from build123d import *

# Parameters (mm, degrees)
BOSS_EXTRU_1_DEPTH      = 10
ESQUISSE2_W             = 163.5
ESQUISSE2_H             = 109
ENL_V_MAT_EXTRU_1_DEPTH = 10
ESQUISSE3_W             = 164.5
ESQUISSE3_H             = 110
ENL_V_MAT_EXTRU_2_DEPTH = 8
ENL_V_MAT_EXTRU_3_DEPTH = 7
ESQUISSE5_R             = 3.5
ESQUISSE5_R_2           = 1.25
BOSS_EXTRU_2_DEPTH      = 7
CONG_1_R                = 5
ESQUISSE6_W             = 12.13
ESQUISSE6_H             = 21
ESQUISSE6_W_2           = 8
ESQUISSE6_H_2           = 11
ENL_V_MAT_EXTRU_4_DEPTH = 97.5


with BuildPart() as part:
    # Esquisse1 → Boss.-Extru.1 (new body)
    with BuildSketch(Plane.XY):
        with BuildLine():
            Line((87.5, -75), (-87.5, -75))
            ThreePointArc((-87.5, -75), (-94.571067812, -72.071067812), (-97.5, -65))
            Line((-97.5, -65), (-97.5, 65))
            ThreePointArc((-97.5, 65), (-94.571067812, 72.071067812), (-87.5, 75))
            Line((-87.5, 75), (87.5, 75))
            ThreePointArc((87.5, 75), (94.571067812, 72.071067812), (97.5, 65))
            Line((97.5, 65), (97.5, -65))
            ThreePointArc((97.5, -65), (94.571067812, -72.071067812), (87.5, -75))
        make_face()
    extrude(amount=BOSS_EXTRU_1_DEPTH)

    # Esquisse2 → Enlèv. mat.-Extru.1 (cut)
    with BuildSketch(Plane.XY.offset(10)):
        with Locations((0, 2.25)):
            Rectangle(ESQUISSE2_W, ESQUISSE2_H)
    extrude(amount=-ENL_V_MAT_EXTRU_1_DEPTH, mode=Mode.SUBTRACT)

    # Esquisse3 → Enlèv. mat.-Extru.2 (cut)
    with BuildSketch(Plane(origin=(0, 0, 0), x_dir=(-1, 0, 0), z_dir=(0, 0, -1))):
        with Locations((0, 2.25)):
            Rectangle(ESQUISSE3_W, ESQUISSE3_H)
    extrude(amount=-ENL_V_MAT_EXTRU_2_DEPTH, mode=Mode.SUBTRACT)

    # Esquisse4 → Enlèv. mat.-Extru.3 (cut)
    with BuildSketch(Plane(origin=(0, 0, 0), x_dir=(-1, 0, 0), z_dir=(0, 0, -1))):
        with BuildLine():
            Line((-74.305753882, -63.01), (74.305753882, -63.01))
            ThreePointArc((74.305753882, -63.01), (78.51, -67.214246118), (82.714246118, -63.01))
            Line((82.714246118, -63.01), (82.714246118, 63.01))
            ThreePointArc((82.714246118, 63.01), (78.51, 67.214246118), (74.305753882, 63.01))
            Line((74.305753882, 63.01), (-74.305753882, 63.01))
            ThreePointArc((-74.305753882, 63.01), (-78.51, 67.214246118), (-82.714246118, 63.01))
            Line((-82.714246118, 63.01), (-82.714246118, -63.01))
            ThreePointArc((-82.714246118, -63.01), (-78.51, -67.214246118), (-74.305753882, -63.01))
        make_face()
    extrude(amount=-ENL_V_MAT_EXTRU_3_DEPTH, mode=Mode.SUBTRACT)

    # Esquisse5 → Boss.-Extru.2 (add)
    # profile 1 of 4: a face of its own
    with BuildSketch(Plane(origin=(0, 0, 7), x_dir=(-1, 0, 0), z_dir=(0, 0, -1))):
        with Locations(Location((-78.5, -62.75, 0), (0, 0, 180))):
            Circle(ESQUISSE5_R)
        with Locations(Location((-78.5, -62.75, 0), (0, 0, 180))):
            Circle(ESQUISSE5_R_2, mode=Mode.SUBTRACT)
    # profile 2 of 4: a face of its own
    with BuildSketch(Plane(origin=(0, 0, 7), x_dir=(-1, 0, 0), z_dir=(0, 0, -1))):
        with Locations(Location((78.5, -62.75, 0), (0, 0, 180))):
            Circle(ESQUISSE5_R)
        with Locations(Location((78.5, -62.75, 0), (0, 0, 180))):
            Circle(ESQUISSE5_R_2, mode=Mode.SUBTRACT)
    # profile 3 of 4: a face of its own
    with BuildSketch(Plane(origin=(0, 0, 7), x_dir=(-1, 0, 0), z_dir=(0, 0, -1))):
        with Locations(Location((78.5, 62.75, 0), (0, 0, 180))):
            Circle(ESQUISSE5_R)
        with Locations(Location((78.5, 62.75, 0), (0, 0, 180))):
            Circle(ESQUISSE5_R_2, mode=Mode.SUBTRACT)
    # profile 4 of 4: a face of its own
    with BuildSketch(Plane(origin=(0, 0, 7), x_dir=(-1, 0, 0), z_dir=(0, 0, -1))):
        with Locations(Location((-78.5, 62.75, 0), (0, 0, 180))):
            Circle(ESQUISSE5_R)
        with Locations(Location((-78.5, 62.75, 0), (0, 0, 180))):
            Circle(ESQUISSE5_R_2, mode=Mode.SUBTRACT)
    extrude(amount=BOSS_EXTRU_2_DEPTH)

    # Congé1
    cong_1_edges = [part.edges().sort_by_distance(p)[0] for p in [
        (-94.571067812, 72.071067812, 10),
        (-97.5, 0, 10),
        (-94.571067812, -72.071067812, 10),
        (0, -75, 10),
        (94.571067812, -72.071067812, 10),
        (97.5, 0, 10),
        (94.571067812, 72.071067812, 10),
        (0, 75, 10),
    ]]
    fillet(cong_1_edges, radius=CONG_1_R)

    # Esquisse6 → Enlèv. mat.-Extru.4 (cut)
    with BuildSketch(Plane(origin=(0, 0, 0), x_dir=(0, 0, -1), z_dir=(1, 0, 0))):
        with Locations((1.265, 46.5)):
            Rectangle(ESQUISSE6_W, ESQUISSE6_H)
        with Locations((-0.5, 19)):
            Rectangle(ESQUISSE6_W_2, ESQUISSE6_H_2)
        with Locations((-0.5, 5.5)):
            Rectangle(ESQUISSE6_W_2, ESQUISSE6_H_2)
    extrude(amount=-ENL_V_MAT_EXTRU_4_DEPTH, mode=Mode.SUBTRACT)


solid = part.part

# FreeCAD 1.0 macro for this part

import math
import FreeCAD as App
import Part
import Sketcher

V = App.Vector


def edges_at(feature, points):
    """Names of the edges that pass closest to the given points."""
    edges = feature.Shape.Edges
    near = lambda p: min(range(len(edges)), key=lambda i: edges[i].distToShape(Part.Vertex(*p))[0])
    return sorted({f"Edge{near(p) + 1}" for p in points})

doc = App.newDocument("Part")
params = doc.addObject("Spreadsheet::Sheet", "Params")
for row, (alias, value) in enumerate([
    ("sketch1_radius", "10 mm"),
    ("sketch1_width", "175 mm"),
    ("sketch1_height", "130 mm"),
    ("pad1_length", "10 mm"),
    ("sketch2_height", "109 mm"),
    ("sketch2_width", "163.5 mm"),
    ("pocket1_length", "10 mm"),
    ("sketch3_height", "110 mm"),
    ("sketch3_width", "164.5 mm"),
    ("pocket2_length", "8 mm"),
    ("sketch4_height", "126.02 mm"),
    ("pocket3_length", "7 mm"),
    ("sketch5_diameter", "7 mm"),
    ("sketch5_diameter2", "2.5 mm"),
    ("pad2_length", "7 mm"),
    ("fillet_radius", "5 mm"),
    ("sketch6_width", "21 mm"),
    ("sketch6_width2", "11 mm"),
    ("sketch6_height", "8 mm"),
    ("sketch6_height2", "12.13 mm"),
    ("pocket4_length", "97.5 mm"),
], start=1):
    params.set(f"A{row}", alias)
    params.set(f"B{row}", "=" + value)
    params.setAlias(f"B{row}", alias)

body = doc.addObject("PartDesign::Body", "Body")

# Sketch on XY plane
sketch1 = body.newObject("Sketcher::SketchObject", "Sketch")
sketch1.AttachmentSupport = (doc.getObject("XY_Plane"), [""])
sketch1.MapMode = "FlatFace"
sketch1.addGeometry([
    Part.LineSegment(V(-88, -75, 0), V(88, -75, 0)),  # 0
    Part.ArcOfCircle(Part.Circle(V(88, -65, 0), V(0, 0, 1), 10), math.radians(-90), math.radians(0)),  # 1
    Part.LineSegment(V(98, -65, 0), V(98, 65, 0)),  # 2
    Part.ArcOfCircle(Part.Circle(V(88, 65, 0), V(0, 0, 1), 10), math.radians(0), math.radians(90)),  # 3
    Part.LineSegment(V(88, 75, 0), V(-88, 75, 0)),  # 4
    Part.ArcOfCircle(Part.Circle(V(-88, 65, 0), V(0, 0, 1), 10), math.radians(90), math.radians(180)),  # 5
    Part.LineSegment(V(-98, 65, 0), V(-98, -65, 0)),  # 6
    Part.ArcOfCircle(Part.Circle(V(-88, -65, 0), V(0, 0, 1), 10), math.radians(180), math.radians(270)),  # 7
], False)
sketch1.addConstraint([
    Sketcher.Constraint("Tangent", 0, 2, 1, 1),
    Sketcher.Constraint("Tangent", 1, 2, 2, 1),
    Sketcher.Constraint("Tangent", 2, 2, 3, 1),
    Sketcher.Constraint("Tangent", 3, 2, 4, 1),
    Sketcher.Constraint("Tangent", 4, 2, 5, 1),
    Sketcher.Constraint("Tangent", 5, 2, 6, 1),
    Sketcher.Constraint("Tangent", 6, 2, 7, 1),
    Sketcher.Constraint("Tangent", 7, 2, 0, 1),
    Sketcher.Constraint("Horizontal", 0),
    Sketcher.Constraint("Vertical", 2),
    Sketcher.Constraint("Horizontal", 4),
    Sketcher.Constraint("Vertical", 6),
    Sketcher.Constraint("Equal", 1, 3),
    Sketcher.Constraint("Equal", 3, 5),
    Sketcher.Constraint("Equal", 5, 7),
    Sketcher.Constraint("Symmetric", 1, 3, 5, 3, -1, 1),
    Sketcher.Constraint("Radius", 1, 10.0),
    Sketcher.Constraint("DistanceX", 0, 1, 0, 2, 175.0),
    Sketcher.Constraint("DistanceY", 2, 1, 2, 2, 130.0),
])
sketch1.setExpression("Constraints[16]", "Params.sketch1_radius")
sketch1.setExpression("Constraints[17]", "Params.sketch1_width")
sketch1.setExpression("Constraints[18]", "Params.sketch1_height")
pad1 = body.newObject("PartDesign::Pad", "Pad")
pad1.Profile = sketch1
pad1.setExpression("Length", "Params.pad1_length")

# Sketch on XY plane
sketch2 = body.newObject("Sketcher::SketchObject", "Sketch001")
sketch2.AttachmentSupport = (doc.getObject("XY_Plane"), [""])
sketch2.MapMode = "FlatFace"
sketch2.AttachmentOffset = App.Placement(V(0, 0, 10), App.Rotation())
sketch2.addGeometry([
    Part.LineSegment(V(-82, 57, 0), V(-82, -52, 0)),
    Part.LineSegment(V(-82, -52, 0), V(82, -52, 0)),
    Part.LineSegment(V(82, -52, 0), V(82, 57, 0)),
    Part.LineSegment(V(82, 57, 0), V(-82, 57, 0)),
], False)
sketch2.addConstraint([
    Sketcher.Constraint("Coincident", 0, 2, 1, 1),
    Sketcher.Constraint("Coincident", 1, 2, 2, 1),
    Sketcher.Constraint("Coincident", 2, 2, 3, 1),
    Sketcher.Constraint("Coincident", 3, 2, 0, 1),
    Sketcher.Constraint("Vertical", 0),
    Sketcher.Constraint("Horizontal", 1),
    Sketcher.Constraint("Vertical", 2),
    Sketcher.Constraint("Horizontal", 3),
    Sketcher.Constraint("DistanceY", 0, 2, 0, 1, 109.0),
    Sketcher.Constraint("DistanceX", 1, 1, 1, 2, 163.5),
    Sketcher.Constraint("DistanceX", 0, 2, -1, 1, 81.75),
    Sketcher.Constraint("DistanceY", 0, 2, -1, 1, 52.25),
])
sketch2.setExpression("Constraints[8]", "Params.sketch2_height")
sketch2.setExpression("Constraints[9]", "Params.sketch2_width")
pocket1 = body.newObject("PartDesign::Pocket", "Pocket")
pocket1.Profile = sketch2
pocket1.setExpression("Length", "Params.pocket1_length")

# Sketch on XY plane
sketch3 = body.newObject("Sketcher::SketchObject", "Sketch002")
sketch3.AttachmentSupport = (doc.getObject("XY_Plane"), [""])
sketch3.MapMode = "FlatFace"
sketch3.addGeometry([
    Part.LineSegment(V(82, 57, 0), V(82, -53, 0)),
    Part.LineSegment(V(82, -53, 0), V(-82, -53, 0)),
    Part.LineSegment(V(-82, -53, 0), V(-82, 57, 0)),
    Part.LineSegment(V(-82, 57, 0), V(82, 57, 0)),
], False)
sketch3.addConstraint([
    Sketcher.Constraint("Coincident", 0, 2, 1, 1),
    Sketcher.Constraint("Coincident", 1, 2, 2, 1),
    Sketcher.Constraint("Coincident", 2, 2, 3, 1),
    Sketcher.Constraint("Coincident", 3, 2, 0, 1),
    Sketcher.Constraint("Vertical", 0),
    Sketcher.Constraint("Horizontal", 1),
    Sketcher.Constraint("Vertical", 2),
    Sketcher.Constraint("Horizontal", 3),
    Sketcher.Constraint("DistanceY", 0, 2, 0, 1, 110.0),
    Sketcher.Constraint("DistanceX", 1, 2, 1, 1, 164.5),
    Sketcher.Constraint("DistanceX", -1, 1, 0, 2, 82.25),
    Sketcher.Constraint("DistanceY", 0, 2, -1, 1, 52.75),
])
sketch3.setExpression("Constraints[8]", "Params.sketch3_height")
sketch3.setExpression("Constraints[9]", "Params.sketch3_width")
pocket2 = body.newObject("PartDesign::Pocket", "Pocket001")
pocket2.Profile = sketch3
pocket2.setExpression("Length", "Params.pocket2_length")
pocket2.Reversed = True

# Sketch on XY plane
sketch4 = body.newObject("Sketcher::SketchObject", "Sketch003")
sketch4.AttachmentSupport = (doc.getObject("XY_Plane"), [""])
sketch4.MapMode = "FlatFace"
sketch4.addGeometry([
    Part.LineSegment(V(74.3, -63, 0), V(-74.3, -63, 0)),  # 0
    Part.ArcOfCircle(Part.Circle(V(-78.5, -63, 0), V(0, 0, 1), 4.2), math.radians(180), math.radians(360)),  # 1
    Part.LineSegment(V(-82.7, -63, 0), V(-82.7, 63, 0)),  # 2
    Part.ArcOfCircle(Part.Circle(V(-78.5, 63, 0), V(0, 0, 1), 4.2), math.radians(0), math.radians(180)),  # 3
    Part.LineSegment(V(-74.3, 63, 0), V(74.3, 63, 0)),  # 4
    Part.ArcOfCircle(Part.Circle(V(78.5, 63, 0), V(0, 0, 1), 4.2), math.radians(0), math.radians(180)),  # 5
    Part.LineSegment(V(82.7, 63, 0), V(82.7, -63, 0)),  # 6
    Part.ArcOfCircle(Part.Circle(V(78.5, -63, 0), V(0, 0, 1), 4.2), math.radians(180), math.radians(360)),  # 7
], False)
sketch4.addConstraint([
    Sketcher.Constraint("Coincident", 0, 2, 1, 2),
    Sketcher.Constraint("Tangent", 1, 1, 2, 1),
    Sketcher.Constraint("Tangent", 2, 2, 3, 2),
    Sketcher.Constraint("Coincident", 3, 1, 4, 1),
    Sketcher.Constraint("Coincident", 4, 2, 5, 2),
    Sketcher.Constraint("Tangent", 5, 1, 6, 1),
    Sketcher.Constraint("Tangent", 6, 2, 7, 2),
    Sketcher.Constraint("Coincident", 7, 1, 0, 1),
    Sketcher.Constraint("Horizontal", 0),
    Sketcher.Constraint("Vertical", 2),
    Sketcher.Constraint("Horizontal", 4),
    Sketcher.Constraint("Vertical", 6),
    Sketcher.Constraint("Equal", 1, 3),
    Sketcher.Constraint("Equal", 3, 5),
    Sketcher.Constraint("Equal", 5, 7),
    Sketcher.Constraint("Symmetric", 1, 3, 5, 3, -1, 1),
    Sketcher.Constraint("Horizontal", 3, 3, 5, 3),
    Sketcher.Constraint("Horizontal", 1, 3, 7, 3),
    Sketcher.Constraint("Horizontal", 7, 3, 0, 2),
    Sketcher.Constraint("Horizontal", 2, 2, 3, 1),
    Sketcher.Constraint("DistanceY", 2, 1, 2, 2, 126.02),
    Sketcher.Constraint("DistanceX", 1, 3, -1, 1, 78.51),
    Sketcher.Constraint("Radius", 1, 4.204246),
])
sketch4.setExpression("Constraints[20]", "Params.sketch4_height")
pocket3 = body.newObject("PartDesign::Pocket", "Pocket002")
pocket3.Profile = sketch4
pocket3.setExpression("Length", "Params.pocket3_length")
pocket3.Reversed = True

# Sketch on XY plane
sketch5 = body.newObject("Sketcher::SketchObject", "Sketch004")
sketch5.AttachmentSupport = (doc.getObject("XY_Plane"), [""])
sketch5.MapMode = "FlatFace"
sketch5.AttachmentOffset = App.Placement(V(0, 0, 7), App.Rotation())
sketch5.addGeometry([
    Part.Circle(V(78.5, -62.8, 0), V(0, 0, 1), 3.5),  # 0
    Part.Circle(V(78.5, -62.8, 0), V(0, 0, 1), 1.2),  # 1
    Part.Circle(V(-78.5, -62.8, 0), V(0, 0, 1), 3.5),  # 2
    Part.Circle(V(-78.5, -62.8, 0), V(0, 0, 1), 1.2),  # 3
    Part.Circle(V(-78.5, 62.8, 0), V(0, 0, 1), 3.5),  # 4
    Part.Circle(V(-78.5, 62.8, 0), V(0, 0, 1), 1.2),  # 5
    Part.Circle(V(78.5, 62.8, 0), V(0, 0, 1), 3.5),  # 6
    Part.Circle(V(78.5, 62.8, 0), V(0, 0, 1), 1.2),  # 7
], False)
sketch5.addConstraint([
    Sketcher.Constraint("Coincident", 1, 3, 0, 3),
    Sketcher.Constraint("Coincident", 3, 3, 2, 3),
    Sketcher.Constraint("Coincident", 5, 3, 4, 3),
    Sketcher.Constraint("Coincident", 7, 3, 6, 3),
    Sketcher.Constraint("Equal", 0, 2),
    Sketcher.Constraint("Equal", 1, 3),
    Sketcher.Constraint("Equal", 2, 4),
    Sketcher.Constraint("Equal", 3, 5),
    Sketcher.Constraint("Equal", 4, 6),
    Sketcher.Constraint("Equal", 5, 7),
    Sketcher.Constraint("Symmetric", 0, 3, 4, 3, -1, 1),
    Sketcher.Constraint("Symmetric", 2, 3, 6, 3, -1, 1),
    Sketcher.Constraint("Symmetric", 0, 3, 2, 3, -2),
    Sketcher.Constraint("Diameter", 0, 7.0),
    Sketcher.Constraint("Diameter", 1, 2.5),
    Sketcher.Constraint("DistanceX", 2, 3, 0, 3, 157.0),
    Sketcher.Constraint("DistanceY", 2, 3, 4, 3, 125.5),
])
sketch5.setExpression("Constraints[13]", "Params.sketch5_diameter")
sketch5.setExpression("Constraints[14]", "Params.sketch5_diameter2")
pad2 = body.newObject("PartDesign::Pad", "Pad001")
pad2.Profile = sketch5
pad2.setExpression("Length", "Params.pad2_length")
pad2.Reversed = True
doc.recompute()

fillet = body.newObject("PartDesign::Fillet", "Fillet")
fillet.Base = (pad2, edges_at(pad2, [
    (-94.571, 72.071, 10),
    (-97.5, 0, 10),
    (-94.571, -72.071, 10),
    (0, -75, 10),
    (94.571, -72.071, 10),
    (97.5, 0, 10),
    (94.571, 72.071, 10),
    (0, 75, 10),
]))
fillet.setExpression("Radius", "Params.fillet_radius")

# Sketch on YZ plane
sketch6 = body.newObject("Sketcher::SketchObject", "Sketch005")
sketch6.AttachmentSupport = (doc.getObject("YZ_Plane"), [""])
sketch6.MapMode = "FlatFace"
sketch6.addGeometry([
    Part.LineSegment(V(57, 5, 0), V(36, 5, 0)),  # 0
    Part.LineSegment(V(36, 5, 0), V(36, -7, 0)),  # 1
    Part.LineSegment(V(36, -7, 0), V(57, -7, 0)),  # 2
    Part.LineSegment(V(57, -7, 0), V(57, 5, 0)),  # 3
    Part.LineSegment(V(24, 4, 0), V(14, 4, 0)),  # 4
    Part.LineSegment(V(14, 4, 0), V(14, -4, 0)),  # 5
    Part.LineSegment(V(14, -4, 0), V(24, -4, 0)),  # 6
    Part.LineSegment(V(24, -4, 0), V(24, 4, 0)),  # 7
    Part.LineSegment(V(11, 4, 0), V(0, 4, 0)),  # 8
    Part.LineSegment(V(0, 4, 0), V(0, -4, 0)),  # 9
    Part.LineSegment(V(0, -4, 0), V(11, -4, 0)),  # 10
    Part.LineSegment(V(11, -4, 0), V(11, 4, 0)),  # 11
], False)
sketch6.addConstraint([
    Sketcher.Constraint("Coincident", 0, 2, 1, 1),
    Sketcher.Constraint("Coincident", 1, 2, 2, 1),
    Sketcher.Constraint("Coincident", 2, 2, 3, 1),
    Sketcher.Constraint("Coincident", 3, 2, 0, 1),
    Sketcher.Constraint("Coincident", 4, 2, 5, 1),
    Sketcher.Constraint("Coincident", 5, 2, 6, 1),
    Sketcher.Constraint("Coincident", 6, 2, 7, 1),
    Sketcher.Constraint("Coincident", 7, 2, 4, 1),
    Sketcher.Constraint("Coincident", 8, 2, 9, 1),
    Sketcher.Constraint("Coincident", 9, 2, 10, 1),
    Sketcher.Constraint("Coincident", 10, 2, 11, 1),
    Sketcher.Constraint("Coincident", 11, 2, 8, 1),
    Sketcher.Constraint("Horizontal", 0),
    Sketcher.Constraint("Vertical", 1),
    Sketcher.Constraint("Horizontal", 2),
    Sketcher.Constraint("Vertical", 3),
    Sketcher.Constraint("Horizontal", 4),
    Sketcher.Constraint("Vertical", 5),
    Sketcher.Constraint("Horizontal", 6),
    Sketcher.Constraint("Vertical", 7),
    Sketcher.Constraint("Horizontal", 8),
    Sketcher.Constraint("Vertical", 9),
    Sketcher.Constraint("Horizontal", 10),
    Sketcher.Constraint("Vertical", 11),
    Sketcher.Constraint("PointOnObject", 8, 2, -2),
    Sketcher.Constraint("Horizontal", 7, 2, 8, 2),
    Sketcher.Constraint("Horizontal", 6, 2, 9, 2),
    Sketcher.Constraint("Equal", 6, 8),
    Sketcher.Constraint("DistanceX", 0, 2, 0, 1, 21.0),
    Sketcher.Constraint("DistanceX", 4, 2, 4, 1, 11.0),
    Sketcher.Constraint("DistanceY", 5, 2, 5, 1, 8.0),
    Sketcher.Constraint("DistanceX", -1, 1, 0, 2, 36.0),
    Sketcher.Constraint("DistanceY", 1, 2, 1, 1, 12.13),
    Sketcher.Constraint("DistanceY", -1, 1, 0, 2, 4.8),
    Sketcher.Constraint("DistanceX", -1, 1, 4, 2, 13.5),
    Sketcher.Constraint("DistanceY", -1, 1, 4, 2, 4.5),
])
sketch6.setExpression("Constraints[28]", "Params.sketch6_width")
sketch6.setExpression("Constraints[29]", "Params.sketch6_width2")
sketch6.setExpression("Constraints[30]", "Params.sketch6_height")
sketch6.setExpression("Constraints[32]", "Params.sketch6_height2")
pocket4 = body.newObject("PartDesign::Pocket", "Pocket003")
pocket4.Profile = sketch6
pocket4.setExpression("Length", "Params.pocket4_length")

doc.recompute()
